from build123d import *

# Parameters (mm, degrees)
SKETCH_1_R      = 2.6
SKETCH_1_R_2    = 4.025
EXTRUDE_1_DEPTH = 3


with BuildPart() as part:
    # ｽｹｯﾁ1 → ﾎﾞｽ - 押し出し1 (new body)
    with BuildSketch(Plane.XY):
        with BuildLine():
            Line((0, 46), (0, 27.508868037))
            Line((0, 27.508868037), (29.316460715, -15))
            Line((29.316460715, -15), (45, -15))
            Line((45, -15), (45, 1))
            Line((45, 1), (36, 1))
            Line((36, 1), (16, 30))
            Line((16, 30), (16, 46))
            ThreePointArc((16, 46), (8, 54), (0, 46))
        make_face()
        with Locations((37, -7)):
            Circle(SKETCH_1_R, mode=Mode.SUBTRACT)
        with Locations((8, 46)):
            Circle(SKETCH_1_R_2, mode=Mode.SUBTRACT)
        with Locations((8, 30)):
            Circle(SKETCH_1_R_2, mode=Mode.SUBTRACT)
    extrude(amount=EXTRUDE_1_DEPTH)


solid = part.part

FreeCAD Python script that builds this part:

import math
import FreeCAD as App
import Part
import Sketcher
from FreeCAD import Vector

doc = App.newDocument("Part")
body = doc.addObject("PartDesign::Body", "Body")

# Sketch on XY plane
sketch1 = body.newObject("Sketcher::SketchObject", "Sketch")
sketch1.AttachmentSupport = (doc.getObject("XY_Plane"), [""])
sketch1.MapMode = "FlatFace"
sketch1.addGeometry([
    Part.LineSegment(Vector(0, 46, 0), Vector(0, 27.508868, 0)),  # 0
    Part.LineSegment(Vector(0, 27.508868, 0), Vector(29.316461, -15, 0)),  # 1
    Part.LineSegment(Vector(29.316461, -15, 0), Vector(45, -15, 0)),  # 2
    Part.LineSegment(Vector(45, -15, 0), Vector(45, 1, 0)),  # 3
    Part.LineSegment(Vector(45, 1, 0), Vector(36, 1, 0)),  # 4
    Part.LineSegment(Vector(36, 1, 0), Vector(16, 30, 0)),  # 5
    Part.LineSegment(Vector(16, 30, 0), Vector(16, 46, 0)),  # 6
    Part.ArcOfCircle(Part.Circle(Vector(8, 46, 0), Vector(0, 0, 1), 8), math.radians(0), math.radians(180)),  # 7
    Part.Circle(Vector(37, -7, 0), Vector(0, 0, 1), 2.6),  # 8
    Part.Circle(Vector(8, 30, 0), Vector(0, 0, 1), 4.025),  # 9
    Part.Circle(Vector(8, 46, 0), Vector(0, 0, 1), 4.025),  # 10
], False)
sketch1.addConstraint([
    Sketcher.Constraint("Coincident", 0, 2, 1, 1),
    Sketcher.Constraint("Coincident", 1, 2, 2, 1),
    Sketcher.Constraint("Coincident", 2, 2, 3, 1),
    Sketcher.Constraint("Coincident", 3, 2, 4, 1),
    Sketcher.Constraint("Coincident", 4, 2, 5, 1),
    Sketcher.Constraint("Coincident", 5, 2, 6, 1),
    Sketcher.Constraint("Tangent", 6, 2, 7, 1),
    Sketcher.Constraint("Tangent", 7, 2, 0, 1),
    Sketcher.Constraint("Vertical", 0),
    Sketcher.Constraint("Horizontal", 2),
    Sketcher.Constraint("Vertical", 3),
    Sketcher.Constraint("Horizontal", 4),
    Sketcher.Constraint("Vertical", 6),
    Sketcher.Constraint("Coincident", 10, 3, 7, 3),
    Sketcher.Constraint("Equal", 9, 10),
    Sketcher.Constraint("PointOnObject", 0, 2, -2),
    Sketcher.Constraint("Parallel", 1, 5),
    Sketcher.Constraint("Horizontal", 9, 3, 5, 2),
    Sketcher.Constraint("Vertical", 7, 3, 9, 3),
    Sketcher.Constraint("Equal", 3, 6),
    Sketcher.Constraint("Radius", 7, 8.0),
    Sketcher.Constraint("Diameter", 8, 5.2),
    Sketcher.Constraint("Diameter", 9, 8.05),
    Sketcher.Constraint("DistanceX", 4, 2, 4, 1, 9.0),
    Sketcher.Constraint("DistanceY", 3, 1, 3, 2, 16.0),
    Sketcher.Constraint("DistanceY", -1, 1, 7, 3, 46.0),
    Sketcher.Constraint("DistanceX", -1, 1, 8, 3, 37.0),
    Sketcher.Constraint("DistanceY", 8, 3, -1, 1, 7.0),
    Sketcher.Constraint("DistanceY", 1, 2, -1, 1, 15.0),
    Sketcher.Constraint("DistanceX", -1, 1, 2, 2, 45.0),
    Sketcher.Constraint("DistanceX", 2, 1, 2, 2, 15.683539),
])
pad1 = body.newObject("PartDesign::Pad", "Pad")
pad1.Profile = sketch1
pad1.Length = 3

doc.recompute()
